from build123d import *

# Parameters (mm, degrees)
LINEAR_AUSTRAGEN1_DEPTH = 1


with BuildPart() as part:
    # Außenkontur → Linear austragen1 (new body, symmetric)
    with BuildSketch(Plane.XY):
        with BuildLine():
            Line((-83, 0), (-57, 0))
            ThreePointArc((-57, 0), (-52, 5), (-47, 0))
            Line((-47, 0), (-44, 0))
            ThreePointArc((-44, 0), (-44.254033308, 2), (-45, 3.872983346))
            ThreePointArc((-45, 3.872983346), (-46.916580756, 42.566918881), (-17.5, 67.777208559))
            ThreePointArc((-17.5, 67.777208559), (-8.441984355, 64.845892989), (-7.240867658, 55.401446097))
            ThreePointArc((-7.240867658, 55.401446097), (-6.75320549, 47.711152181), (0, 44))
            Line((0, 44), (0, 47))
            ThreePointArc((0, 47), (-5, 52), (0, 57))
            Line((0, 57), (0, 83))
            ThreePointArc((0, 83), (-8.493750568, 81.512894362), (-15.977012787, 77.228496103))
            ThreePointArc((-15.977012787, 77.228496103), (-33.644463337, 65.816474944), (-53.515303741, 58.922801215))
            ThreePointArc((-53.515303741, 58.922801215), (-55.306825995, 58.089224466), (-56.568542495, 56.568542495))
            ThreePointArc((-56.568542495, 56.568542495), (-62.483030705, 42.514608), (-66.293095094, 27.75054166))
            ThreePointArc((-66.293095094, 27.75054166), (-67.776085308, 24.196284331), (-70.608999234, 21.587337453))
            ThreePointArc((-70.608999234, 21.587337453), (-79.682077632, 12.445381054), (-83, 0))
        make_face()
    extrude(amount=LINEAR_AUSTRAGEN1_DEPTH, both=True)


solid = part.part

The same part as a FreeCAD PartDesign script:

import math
import FreeCAD as App
import Part
import Sketcher

V = App.Vector

doc = App.newDocument("Part")
params = doc.addObject("Spreadsheet::Sheet", "Params")
for row, (alias, value) in enumerate([
    ("sketch1_radius", "5 mm"),
    ("sketch1_radius2", "8 mm"),
    ("sketch1_radius3", "44 mm"),
    ("sketch1_radius4", "25 mm"),
    ("sketch1_radius5", "88 mm"),
    ("pad1_length", "2 mm"),
], start=1):
    params.set(f"A{row}", alias)
    params.set(f"B{row}", "=" + value)
    params.setAlias(f"B{row}", alias)

body = doc.addObject("PartDesign::Body", "Body")

sketch1 = body.newObject("Sketcher::SketchObject", "Sketch")
sketch1.AttachmentSupport = (doc.getObject("XY_Plane"), [""])
sketch1.MapMode = "FlatFace"
sketch1.addGeometry(Part.LineSegment(V(-83, 0, 0), V(-57, 0, 0)), False)
sketch1.addGeometry(Part.ArcOfCircle(Part.Circle(V(-52, 0, 0), V(0, 0, 1), 5), math.radians(0), math.radians(180)), False)
sketch1.addGeometry(Part.LineSegment(V(-47, 0, 0), V(-44, 0, 0)), False)
sketch1.addGeometry(Part.ArcOfCircle(Part.Circle(V(-52, 0, 0), V(0, 0, 1), 8), math.radians(0), math.radians(29)), False)
sketch1.addGeometry(Part.ArcOfCircle(Part.Circle(V(-6.5, 25.2, 0), V(0, 0, 1), 44), math.radians(104), math.radians(209)), False)
sketch1.addGeometry(Part.ArcOfCircle(Part.Circle(V(-15.3, 59.2, 0), V(0, 0, 1), 8.9), math.radians(-25), math.radians(104)), False)
sketch1.addGeometry(Part.ArcOfCircle(Part.Circle(V(0, 52, 0), V(0, 0, 1), 8), math.radians(155), math.radians(270)), False)
sketch1.addGeometry(Part.LineSegment(V(0, 44, 0), V(0, 47, 0)), False)
sketch1.addGeometry(Part.ArcOfCircle(Part.Circle(V(0, 52, 0), V(0, 0, 1), 5), math.radians(90), math.radians(270)), False)
sketch1.addGeometry(Part.LineSegment(V(0, 57, 0), V(0, 83, 0)), False)
sketch1.addGeometry(Part.ArcOfCircle(Part.Circle(V(0, 58, 0), V(0, 0, 1), 25), math.radians(90), math.radians(130)), False)
sketch1.addGeometry(Part.ArcOfCircle(Part.Circle(V(-72.2, 144.9, 0), V(0, 0, 1), 88), math.radians(-78), math.radians(-50)), False)
sketch1.addGeometry(Part.ArcOfCircle(Part.Circle(V(-52.6, 54.5, 0), V(0, 0, 1), 4.5), math.radians(102), math.radians(153)), False)
sketch1.addGeometry(Part.ArcOfCircle(Part.Circle(V(36.7, 9, 0), V(0, 0, 1), 104.7), math.radians(153), math.radians(169.71)), False)
sketch1.addGeometry(Part.ArcOfCircle(Part.Circle(V(-75.1, 29.4, 0), V(0, 0, 1), 9), math.radians(-60), math.radians(-10)), False)
sketch1.addGeometry(Part.ArcOfCircle(Part.Circle(V(-58, 0, 0), V(0, 0, 1), 25), math.radians(120), math.radians(180)), False)
sketch1.addConstraint(Sketcher.Constraint("Coincident", 0, 2, 1, 2))
sketch1.addConstraint(Sketcher.Constraint("Coincident", 1, 1, 2, 1))
sketch1.addConstraint(Sketcher.Constraint("Coincident", 2, 2, 3, 1))
sketch1.addConstraint(Sketcher.Constraint("Tangent", 3, 2, 4, 2))
sketch1.addConstraint(Sketcher.Constraint("Tangent", 4, 1, 5, 2))
sketch1.addConstraint(Sketcher.Constraint("Tangent", 5, 1, 6, 1))
sketch1.addConstraint(Sketcher.Constraint("Coincident", 6, 2, 7, 1))
sketch1.addConstraint(Sketcher.Constraint("Coincident", 7, 2, 8, 2))
sketch1.addConstraint(Sketcher.Constraint("Coincident", 8, 1, 9, 1))
sketch1.addConstraint(Sketcher.Constraint("Coincident", 9, 2, 10, 1))
sketch1.addConstraint(Sketcher.Constraint("Tangent", 10, 2, 11, 2))
sketch1.addConstraint(Sketcher.Constraint("Tangent", 11, 1, 12, 1))
sketch1.addConstraint(Sketcher.Constraint("Tangent", 12, 2, 13, 1))
sketch1.addConstraint(Sketcher.Constraint("Tangent", 13, 2, 14, 2))
sketch1.addConstraint(Sketcher.Constraint("Tangent", 14, 1, 15, 1))
sketch1.addConstraint(Sketcher.Constraint("Coincident", 15, 2, 0, 1))
sketch1.addConstraint(Sketcher.Constraint("Horizontal", 0))
sketch1.addConstraint(Sketcher.Constraint("Horizontal", 2))
sketch1.addConstraint(Sketcher.Constraint("Vertical", 7))
sketch1.addConstraint(Sketcher.Constraint("Vertical", 9))
sketch1.addConstraint(Sketcher.Constraint("Coincident", 3, 3, 1, 3))
sketch1.addConstraint(Sketcher.Constraint("Coincident", 8, 3, 6, 3))
sketch1.addConstraint(Sketcher.Constraint("Equal", 3, 6))
sketch1.addConstraint(Sketcher.Constraint("Equal", 1, 8))
sketch1.addConstraint(Sketcher.Constraint("Equal", 10, 15))
sketch1.addConstraint(Sketcher.Constraint("PointOnObject", 1, 3, -1))
sketch1.addConstraint(Sketcher.Constraint("PointOnObject", 6, 3, -2))
sketch1.addConstraint(Sketcher.Constraint("PointOnObject", 10, 3, -2))
sketch1.addConstraint(Sketcher.Constraint("PointOnObject", 15, 3, -1))
sketch1.addConstraint(Sketcher.Constraint("PointOnObject", 0, 2, -1))
sketch1.addConstraint(Sketcher.Constraint("PointOnObject", 1, 1, -1))
sketch1.addConstraint(Sketcher.Constraint("PointOnObject", 6, 2, -2))
sketch1.addConstraint(Sketcher.Constraint("PointOnObject", 8, 1, -2))
sketch1.addConstraint(Sketcher.Constraint("Equal", 0, 9))
sketch1.addConstraint(Sketcher.Constraint("Radius", 1, 5.0))
sketch1.addConstraint(Sketcher.Constraint("Radius", 3, 8.0))
sketch1.addConstraint(Sketcher.Constraint("Radius", 4, 44.0))
sketch1.addConstraint(Sketcher.Constraint("Radius", 10, 25.0))
sketch1.addConstraint(Sketcher.Constraint("Radius", 11, 88.0))
sketch1.addConstraint(Sketcher.Constraint("Radius", 14, 9.0))
sketch1.addConstraint(Sketcher.Constraint("Radius", 12, 4.5))
sketch1.addConstraint(Sketcher.Constraint("DistanceX", 0, 1, 0, 2, 26.0))
sketch1.addConstraint(Sketcher.Constraint("DistanceX", 1, 3, -1, 1, 52.0))
sketch1.addConstraint(Sketcher.Constraint("DistanceY", -1, 1, 6, 3, 52.0))
sketch1.addConstraint(Sketcher.Constraint("DistanceX", 3, 2, -1, 1, 45.0))
sketch1.addConstraint(Sketcher.Constraint("DistanceX", 4, 1, -1, 1, 17.5))
sketch1.addConstraint(Sketcher.Constraint("DistanceX", 14, 1, -1, 1, 70.608999))
sketch1.addConstraint(Sketcher.Constraint("Radius", 13, 104.679498))
sketch1.addConstraint(Sketcher.Constraint("DistanceY", 13, 2, 12, 2, 28.818001))
sketch1.addConstraint(Sketcher.Constraint("DistanceY", -1, 1, 11, 1, 58.922801))
sketch1.setExpression("Constraints[34]", "Params.sketch1_radius")
sketch1.setExpression("Constraints[35]", "Params.sketch1_radius2")
sketch1.setExpression("Constraints[36]", "Params.sketch1_radius3")
sketch1.setExpression("Constraints[37]", "Params.sketch1_radius4")
sketch1.setExpression("Constraints[38]", "Params.sketch1_radius5")
pad1 = body.newObject("PartDesign::Pad", "Pad")
pad1.Profile = sketch1
pad1.setExpression("Length", "Params.pad1_length")
pad1.Midplane = True

doc.recompute()
